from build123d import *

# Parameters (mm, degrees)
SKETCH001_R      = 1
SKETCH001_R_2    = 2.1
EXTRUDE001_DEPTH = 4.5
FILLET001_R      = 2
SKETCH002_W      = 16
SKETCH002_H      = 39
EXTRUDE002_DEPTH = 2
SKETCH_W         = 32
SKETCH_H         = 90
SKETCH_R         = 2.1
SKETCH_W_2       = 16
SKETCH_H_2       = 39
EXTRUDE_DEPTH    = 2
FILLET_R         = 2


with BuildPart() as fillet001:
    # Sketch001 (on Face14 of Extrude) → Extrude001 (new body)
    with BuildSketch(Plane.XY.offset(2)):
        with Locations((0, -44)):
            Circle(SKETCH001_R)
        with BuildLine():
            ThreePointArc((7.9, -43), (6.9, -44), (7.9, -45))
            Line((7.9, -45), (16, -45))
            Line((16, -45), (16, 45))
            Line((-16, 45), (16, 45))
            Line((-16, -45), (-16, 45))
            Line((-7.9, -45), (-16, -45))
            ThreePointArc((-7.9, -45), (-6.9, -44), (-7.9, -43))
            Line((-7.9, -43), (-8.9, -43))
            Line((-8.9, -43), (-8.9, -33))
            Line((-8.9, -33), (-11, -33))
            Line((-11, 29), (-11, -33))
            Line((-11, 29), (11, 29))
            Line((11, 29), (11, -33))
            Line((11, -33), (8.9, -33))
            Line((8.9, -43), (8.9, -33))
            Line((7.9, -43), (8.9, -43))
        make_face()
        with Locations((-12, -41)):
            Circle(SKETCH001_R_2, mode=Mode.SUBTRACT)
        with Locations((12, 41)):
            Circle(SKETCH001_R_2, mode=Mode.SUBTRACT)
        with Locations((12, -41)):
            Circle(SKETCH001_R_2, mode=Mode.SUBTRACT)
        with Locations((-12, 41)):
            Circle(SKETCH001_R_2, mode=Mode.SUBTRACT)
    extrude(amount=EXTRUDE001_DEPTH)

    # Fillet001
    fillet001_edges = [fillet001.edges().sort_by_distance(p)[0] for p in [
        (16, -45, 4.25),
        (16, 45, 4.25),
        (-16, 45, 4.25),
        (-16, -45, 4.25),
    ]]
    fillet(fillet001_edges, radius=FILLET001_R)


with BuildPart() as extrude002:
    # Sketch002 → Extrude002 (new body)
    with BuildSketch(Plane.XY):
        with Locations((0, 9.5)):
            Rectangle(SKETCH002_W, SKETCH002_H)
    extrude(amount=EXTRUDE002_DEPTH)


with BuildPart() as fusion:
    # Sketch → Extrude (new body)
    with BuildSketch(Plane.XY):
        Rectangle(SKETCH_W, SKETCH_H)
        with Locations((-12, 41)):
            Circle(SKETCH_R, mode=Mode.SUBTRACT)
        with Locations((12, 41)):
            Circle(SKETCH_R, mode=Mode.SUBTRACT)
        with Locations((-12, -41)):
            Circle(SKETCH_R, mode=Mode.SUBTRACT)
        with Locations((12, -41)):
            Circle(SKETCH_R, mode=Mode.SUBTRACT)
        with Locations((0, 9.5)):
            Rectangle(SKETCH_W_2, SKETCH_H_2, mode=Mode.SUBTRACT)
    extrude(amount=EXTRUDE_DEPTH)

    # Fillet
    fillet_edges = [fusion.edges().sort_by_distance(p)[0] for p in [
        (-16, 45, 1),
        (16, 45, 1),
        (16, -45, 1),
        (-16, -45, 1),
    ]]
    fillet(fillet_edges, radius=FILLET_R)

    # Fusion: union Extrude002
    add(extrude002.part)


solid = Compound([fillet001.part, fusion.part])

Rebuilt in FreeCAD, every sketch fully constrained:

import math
import FreeCAD as App
import Part
import Sketcher


def edges_at(feature, points):
    """Names of the edges that pass closest to the given points."""
    edges = feature.Shape.Edges
    near = lambda p: min(range(len(edges)), key=lambda i: edges[i].distToShape(Part.Vertex(*p))[0])
    return sorted({f"Edge{near(p) + 1}" for p in points})


def add_polygon(sketch, points):
    """Adds a closed chain of lines whose ends are joined by coincident constraints."""
    first, n = sketch.GeometryCount, len(points)
    for a, b in zip(points, points[1:] + points[:1]):
        sketch.addGeometry(Part.LineSegment(App.Vector(*a, 0), App.Vector(*b, 0)), False)
    for i in range(n):
        sketch.addConstraint(Sketcher.Constraint("Coincident", first + i, 2, first + (i + 1) % n, 1))

doc = App.newDocument("Part")
body = doc.addObject("PartDesign::Body", "Body")
body.AllowCompound = True

# Sketch on XY plane
sketch1 = body.newObject("Sketcher::SketchObject", "Sketch")
sketch1.AttachmentSupport = (doc.getObject("XY_Plane"), [""])
sketch1.MapMode = "FlatFace"
sketch1.AttachmentOffset = App.Placement(App.Vector(0, 0, 2), App.Rotation())
sketch1.addGeometry(Part.Circle(App.Vector(0, -44, 0), App.Vector(0, 0, 1), 1), False)
sketch1.addGeometry(Part.ArcOfCircle(Part.Circle(App.Vector(7.9, -44, 0), App.Vector(0, 0, 1), 1), math.radians(90), math.radians(270)), False)
sketch1.addGeometry(Part.LineSegment(App.Vector(7.9, -45, 0), App.Vector(16, -45, 0)), False)
sketch1.addGeometry(Part.LineSegment(App.Vector(16, -45, 0), App.Vector(16, 45, 0)), False)
sketch1.addGeometry(Part.LineSegment(App.Vector(16, 45, 0), App.Vector(-16, 45, 0)), False)
sketch1.addGeometry(Part.LineSegment(App.Vector(-16, 45, 0), App.Vector(-16, -45, 0)), False)
sketch1.addGeometry(Part.LineSegment(App.Vector(-16, -45, 0), App.Vector(-7.9, -45, 0)), False)
sketch1.addGeometry(Part.ArcOfCircle(Part.Circle(App.Vector(-7.9, -44, 0), App.Vector(0, 0, 1), 1), math.radians(-90), math.radians(90)), False)
sketch1.addGeometry(Part.LineSegment(App.Vector(-7.9, -43, 0), App.Vector(-8.9, -43, 0)), False)
sketch1.addGeometry(Part.LineSegment(App.Vector(-8.9, -43, 0), App.Vector(-8.9, -33, 0)), False)
sketch1.addGeometry(Part.LineSegment(App.Vector(-8.9, -33, 0), App.Vector(-11, -33, 0)), False)
sketch1.addGeometry(Part.LineSegment(App.Vector(-11, -33, 0), App.Vector(-11, 29, 0)), False)
sketch1.addGeometry(Part.LineSegment(App.Vector(-11, 29, 0), App.Vector(11, 29, 0)), False)
sketch1.addGeometry(Part.LineSegment(App.Vector(11, 29, 0), App.Vector(11, -33, 0)), False)
sketch1.addGeometry(Part.LineSegment(App.Vector(11, -33, 0), App.Vector(8.9, -33, 0)), False)
sketch1.addGeometry(Part.LineSegment(App.Vector(8.9, -33, 0), App.Vector(8.9, -43, 0)), False)
sketch1.addGeometry(Part.LineSegment(App.Vector(8.9, -43, 0), App.Vector(7.9, -43, 0)), False)
sketch1.addGeometry(Part.Circle(App.Vector(-12, -41, 0), App.Vector(0, 0, 1), 2.1), False)
sketch1.addGeometry(Part.Circle(App.Vector(12, -41, 0), App.Vector(0, 0, 1), 2.1), False)
sketch1.addGeometry(Part.Circle(App.Vector(-12, 41, 0), App.Vector(0, 0, 1), 2.1), False)
sketch1.addGeometry(Part.Circle(App.Vector(12, 41, 0), App.Vector(0, 0, 1), 2.1), False)
sketch1.addConstraint(Sketcher.Constraint("Tangent", 1, 2, 2, 1))
sketch1.addConstraint(Sketcher.Constraint("Coincident", 2, 2, 3, 1))
sketch1.addConstraint(Sketcher.Constraint("Coincident", 3, 2, 4, 1))
sketch1.addConstraint(Sketcher.Constraint("Coincident", 4, 2, 5, 1))
sketch1.addConstraint(Sketcher.Constraint("Coincident", 5, 2, 6, 1))
sketch1.addConstraint(Sketcher.Constraint("Tangent", 6, 2, 7, 1))
sketch1.addConstraint(Sketcher.Constraint("Tangent", 7, 2, 8, 1))
sketch1.addConstraint(Sketcher.Constraint("Coincident", 8, 2, 9, 1))
sketch1.addConstraint(Sketcher.Constraint("Coincident", 9, 2, 10, 1))
sketch1.addConstraint(Sketcher.Constraint("Coincident", 10, 2, 11, 1))
sketch1.addConstraint(Sketcher.Constraint("Coincident", 11, 2, 12, 1))
sketch1.addConstraint(Sketcher.Constraint("Coincident", 12, 2, 13, 1))
sketch1.addConstraint(Sketcher.Constraint("Coincident", 13, 2, 14, 1))
sketch1.addConstraint(Sketcher.Constraint("Coincident", 14, 2, 15, 1))
sketch1.addConstraint(Sketcher.Constraint("Coincident", 15, 2, 16, 1))
sketch1.addConstraint(Sketcher.Constraint("Tangent", 16, 2, 1, 1))
sketch1.addConstraint(Sketcher.Constraint("Horizontal", 2))
sketch1.addConstraint(Sketcher.Constraint("Vertical", 3))
sketch1.addConstraint(Sketcher.Constraint("Horizontal", 4))
sketch1.addConstraint(Sketcher.Constraint("Vertical", 5))
sketch1.addConstraint(Sketcher.Constraint("Horizontal", 6))
sketch1.addConstraint(Sketcher.Constraint("Horizontal", 8))
sketch1.addConstraint(Sketcher.Constraint("Vertical", 9))
sketch1.addConstraint(Sketcher.Constraint("Horizontal", 10))
sketch1.addConstraint(Sketcher.Constraint("Vertical", 11))
sketch1.addConstraint(Sketcher.Constraint("Horizontal", 12))
sketch1.addConstraint(Sketcher.Constraint("Vertical", 13))
sketch1.addConstraint(Sketcher.Constraint("Horizontal", 14))
sketch1.addConstraint(Sketcher.Constraint("Vertical", 15))
sketch1.addConstraint(Sketcher.Constraint("Horizontal", 16))
sketch1.addConstraint(Sketcher.Constraint("Equal", 0, 1))
sketch1.addConstraint(Sketcher.Constraint("Equal", 1, 7))
sketch1.addConstraint(Sketcher.Constraint("Equal", 17, 18))
sketch1.addConstraint(Sketcher.Constraint("Equal", 18, 19))
sketch1.addConstraint(Sketcher.Constraint("Equal", 19, 20))
sketch1.addConstraint(Sketcher.Constraint("Symmetric", 18, 3, 19, 3, -1, 1))
sketch1.addConstraint(Sketcher.Constraint("Symmetric", 17, 3, 20, 3, -1, 1))
sketch1.addConstraint(Sketcher.Constraint("Symmetric", 2, 2, 4, 2, -1, 1))
sketch1.addConstraint(Sketcher.Constraint("Symmetric", 1, 3, 7, 3, -2))
sketch1.addConstraint(Sketcher.Constraint("Symmetric", 17, 3, 18, 3, -2))
sketch1.addConstraint(Sketcher.Constraint("Symmetric", 10, 2, 13, 2, -2))
sketch1.addConstraint(Sketcher.Constraint("PointOnObject", 0, 3, -2))
sketch1.addConstraint(Sketcher.Constraint("Horizontal", 0, 3, 1, 3))
sketch1.addConstraint(Sketcher.Constraint("Equal", 10, 14))
sketch1.addConstraint(Sketcher.Constraint("Diameter", 0, 2.0))
sketch1.addConstraint(Sketcher.Constraint("Diameter", 17, 4.2))
sketch1.addConstraint(Sketcher.Constraint("DistanceX", 4, 2, 4, 1, 32.0))
sketch1.addConstraint(Sketcher.Constraint("DistanceX", 8, 2, 8, 1, 1.0))
sketch1.addConstraint(Sketcher.Constraint("DistanceX", 12, 1, 12, 2, 22.0))
sketch1.addConstraint(Sketcher.Constraint("DistanceY", 3, 1, 3, 2, 90.0))
sketch1.addConstraint(Sketcher.Constraint("DistanceY", 9, 1, 9, 2, 10.0))
sketch1.addConstraint(Sketcher.Constraint("DistanceY", 11, 1, 11, 2, 62.0))
sketch1.addConstraint(Sketcher.Constraint("DistanceX", 2, 1, 2, 2, 8.1))
sketch1.addConstraint(Sketcher.Constraint("DistanceX", 17, 3, -1, 1, 12.0))
sketch1.addConstraint(Sketcher.Constraint("DistanceY", 17, 3, -1, 1, 41.0))
pad1 = body.newObject("PartDesign::Pad", "Pad")
pad1.Profile = sketch1
pad1.Length = 4.5
doc.recompute()

fillet = body.newObject("PartDesign::Fillet", "Fillet")
fillet.Base = (pad1, edges_at(pad1, [
    (16, -45, 4.25),
    (16, 45, 4.25),
    (-16, 45, 4.25),
    (-16, -45, 4.25),
]))
fillet.Radius = 2
body2 = doc.addObject("PartDesign::Body", "Body001")

# Sketch on XY plane
sketch2 = body2.newObject("Sketcher::SketchObject", "Sketch001")
sketch2.AttachmentSupport = (doc.getObject("XY_Plane001"), [""])
sketch2.MapMode = "FlatFace"
add_polygon(sketch2, [(-8, 29), (-8, -10), (8, -10), (8, 29)])  # lines 0-3
sketch2.addConstraint(Sketcher.Constraint("Vertical", 0))
sketch2.addConstraint(Sketcher.Constraint("Horizontal", 1))
sketch2.addConstraint(Sketcher.Constraint("Vertical", 2))
sketch2.addConstraint(Sketcher.Constraint("Horizontal", 3))
sketch2.addConstraint(Sketcher.Constraint("DistanceX", 1, 1, 1, 2, 16.0))
sketch2.addConstraint(Sketcher.Constraint("DistanceY", 0, 2, 0, 1, 39.0))
sketch2.addConstraint(Sketcher.Constraint("DistanceX", 0, 2, -1, 1, 8.0))
sketch2.addConstraint(Sketcher.Constraint("DistanceY", 0, 2, -1, 1, 10.0))
pad2 = body2.newObject("PartDesign::Pad", "Pad001")
pad2.Profile = sketch2
pad2.Length = 2
body3 = doc.addObject("PartDesign::Body", "Body002")

# Sketch on XY plane
sketch3 = body3.newObject("Sketcher::SketchObject", "Sketch002")
sketch3.AttachmentSupport = (doc.getObject("XY_Plane002"), [""])
sketch3.MapMode = "FlatFace"
add_polygon(sketch3, [(-16, 45), (-16, -45), (16, -45), (16, 45)])  # lines 0-3
sketch3.addGeometry(Part.Circle(App.Vector(-12, -41, 0), App.Vector(0, 0, 1), 2.1), False)  # 4
sketch3.addGeometry(Part.Circle(App.Vector(12, -41, 0), App.Vector(0, 0, 1), 2.1), False)  # 5
sketch3.addGeometry(Part.Circle(App.Vector(-12, 41, 0), App.Vector(0, 0, 1), 2.1), False)  # 6
add_polygon(sketch3, [(8, -10), (-8, -10), (-8, 29), (8, 29)])  # lines 7-10
sketch3.addGeometry(Part.Circle(App.Vector(12, 41, 0), App.Vector(0, 0, 1), 2.1), False)  # 11
sketch3.addConstraint(Sketcher.Constraint("Vertical", 0))
sketch3.addConstraint(Sketcher.Constraint("Horizontal", 1))
sketch3.addConstraint(Sketcher.Constraint("Vertical", 2))
sketch3.addConstraint(Sketcher.Constraint("Horizontal", 3))
sketch3.addConstraint(Sketcher.Constraint("Horizontal", 7))
sketch3.addConstraint(Sketcher.Constraint("Vertical", 8))
sketch3.addConstraint(Sketcher.Constraint("Horizontal", 9))
sketch3.addConstraint(Sketcher.Constraint("Vertical", 10))
sketch3.addConstraint(Sketcher.Constraint("Equal", 4, 5))
sketch3.addConstraint(Sketcher.Constraint("Equal", 5, 6))
sketch3.addConstraint(Sketcher.Constraint("Equal", 6, 11))
sketch3.addConstraint(Sketcher.Constraint("Symmetric", 5, 3, 6, 3, -1, 1))
sketch3.addConstraint(Sketcher.Constraint("Symmetric", 4, 3, 11, 3, -1, 1))
sketch3.addConstraint(Sketcher.Constraint("Symmetric", 0, 2, 2, 2, -1, 1))
sketch3.addConstraint(Sketcher.Constraint("Symmetric", 4, 3, 5, 3, -2))
sketch3.addConstraint(Sketcher.Constraint("Diameter", 4, 4.2))
sketch3.addConstraint(Sketcher.Constraint("DistanceX", 1, 1, 1, 2, 32.0))
sketch3.addConstraint(Sketcher.Constraint("DistanceX", 7, 2, 7, 1, 16.0))
sketch3.addConstraint(Sketcher.Constraint("DistanceY", 0, 2, 0, 1, 90.0))
sketch3.addConstraint(Sketcher.Constraint("DistanceY", 8, 1, 8, 2, 39.0))
sketch3.addConstraint(Sketcher.Constraint("DistanceX", 4, 3, -1, 1, 12.0))
sketch3.addConstraint(Sketcher.Constraint("DistanceY", 4, 3, -1, 1, 41.0))
sketch3.addConstraint(Sketcher.Constraint("DistanceX", 7, 2, -1, 1, 8.0))
sketch3.addConstraint(Sketcher.Constraint("DistanceY", 7, 2, -1, 1, 10.0))
pad3 = body3.newObject("PartDesign::Pad", "Pad002")
pad3.Profile = sketch3
pad3.Length = 2
doc.recompute()

fillet2 = body3.newObject("PartDesign::Fillet", "Fillet001")
fillet2.Base = (pad3, edges_at(pad3, [
    (-16, 45, 1),
    (16, 45, 1),
    (16, -45, 1),
    (-16, -45, 1),
]))
fillet2.Radius = 2
doc.recompute()

boolean = body3.newObject("PartDesign::Boolean", "Boolean")
boolean.Type = "Fuse"
boolean.addObjects([body2])

doc.recompute()
